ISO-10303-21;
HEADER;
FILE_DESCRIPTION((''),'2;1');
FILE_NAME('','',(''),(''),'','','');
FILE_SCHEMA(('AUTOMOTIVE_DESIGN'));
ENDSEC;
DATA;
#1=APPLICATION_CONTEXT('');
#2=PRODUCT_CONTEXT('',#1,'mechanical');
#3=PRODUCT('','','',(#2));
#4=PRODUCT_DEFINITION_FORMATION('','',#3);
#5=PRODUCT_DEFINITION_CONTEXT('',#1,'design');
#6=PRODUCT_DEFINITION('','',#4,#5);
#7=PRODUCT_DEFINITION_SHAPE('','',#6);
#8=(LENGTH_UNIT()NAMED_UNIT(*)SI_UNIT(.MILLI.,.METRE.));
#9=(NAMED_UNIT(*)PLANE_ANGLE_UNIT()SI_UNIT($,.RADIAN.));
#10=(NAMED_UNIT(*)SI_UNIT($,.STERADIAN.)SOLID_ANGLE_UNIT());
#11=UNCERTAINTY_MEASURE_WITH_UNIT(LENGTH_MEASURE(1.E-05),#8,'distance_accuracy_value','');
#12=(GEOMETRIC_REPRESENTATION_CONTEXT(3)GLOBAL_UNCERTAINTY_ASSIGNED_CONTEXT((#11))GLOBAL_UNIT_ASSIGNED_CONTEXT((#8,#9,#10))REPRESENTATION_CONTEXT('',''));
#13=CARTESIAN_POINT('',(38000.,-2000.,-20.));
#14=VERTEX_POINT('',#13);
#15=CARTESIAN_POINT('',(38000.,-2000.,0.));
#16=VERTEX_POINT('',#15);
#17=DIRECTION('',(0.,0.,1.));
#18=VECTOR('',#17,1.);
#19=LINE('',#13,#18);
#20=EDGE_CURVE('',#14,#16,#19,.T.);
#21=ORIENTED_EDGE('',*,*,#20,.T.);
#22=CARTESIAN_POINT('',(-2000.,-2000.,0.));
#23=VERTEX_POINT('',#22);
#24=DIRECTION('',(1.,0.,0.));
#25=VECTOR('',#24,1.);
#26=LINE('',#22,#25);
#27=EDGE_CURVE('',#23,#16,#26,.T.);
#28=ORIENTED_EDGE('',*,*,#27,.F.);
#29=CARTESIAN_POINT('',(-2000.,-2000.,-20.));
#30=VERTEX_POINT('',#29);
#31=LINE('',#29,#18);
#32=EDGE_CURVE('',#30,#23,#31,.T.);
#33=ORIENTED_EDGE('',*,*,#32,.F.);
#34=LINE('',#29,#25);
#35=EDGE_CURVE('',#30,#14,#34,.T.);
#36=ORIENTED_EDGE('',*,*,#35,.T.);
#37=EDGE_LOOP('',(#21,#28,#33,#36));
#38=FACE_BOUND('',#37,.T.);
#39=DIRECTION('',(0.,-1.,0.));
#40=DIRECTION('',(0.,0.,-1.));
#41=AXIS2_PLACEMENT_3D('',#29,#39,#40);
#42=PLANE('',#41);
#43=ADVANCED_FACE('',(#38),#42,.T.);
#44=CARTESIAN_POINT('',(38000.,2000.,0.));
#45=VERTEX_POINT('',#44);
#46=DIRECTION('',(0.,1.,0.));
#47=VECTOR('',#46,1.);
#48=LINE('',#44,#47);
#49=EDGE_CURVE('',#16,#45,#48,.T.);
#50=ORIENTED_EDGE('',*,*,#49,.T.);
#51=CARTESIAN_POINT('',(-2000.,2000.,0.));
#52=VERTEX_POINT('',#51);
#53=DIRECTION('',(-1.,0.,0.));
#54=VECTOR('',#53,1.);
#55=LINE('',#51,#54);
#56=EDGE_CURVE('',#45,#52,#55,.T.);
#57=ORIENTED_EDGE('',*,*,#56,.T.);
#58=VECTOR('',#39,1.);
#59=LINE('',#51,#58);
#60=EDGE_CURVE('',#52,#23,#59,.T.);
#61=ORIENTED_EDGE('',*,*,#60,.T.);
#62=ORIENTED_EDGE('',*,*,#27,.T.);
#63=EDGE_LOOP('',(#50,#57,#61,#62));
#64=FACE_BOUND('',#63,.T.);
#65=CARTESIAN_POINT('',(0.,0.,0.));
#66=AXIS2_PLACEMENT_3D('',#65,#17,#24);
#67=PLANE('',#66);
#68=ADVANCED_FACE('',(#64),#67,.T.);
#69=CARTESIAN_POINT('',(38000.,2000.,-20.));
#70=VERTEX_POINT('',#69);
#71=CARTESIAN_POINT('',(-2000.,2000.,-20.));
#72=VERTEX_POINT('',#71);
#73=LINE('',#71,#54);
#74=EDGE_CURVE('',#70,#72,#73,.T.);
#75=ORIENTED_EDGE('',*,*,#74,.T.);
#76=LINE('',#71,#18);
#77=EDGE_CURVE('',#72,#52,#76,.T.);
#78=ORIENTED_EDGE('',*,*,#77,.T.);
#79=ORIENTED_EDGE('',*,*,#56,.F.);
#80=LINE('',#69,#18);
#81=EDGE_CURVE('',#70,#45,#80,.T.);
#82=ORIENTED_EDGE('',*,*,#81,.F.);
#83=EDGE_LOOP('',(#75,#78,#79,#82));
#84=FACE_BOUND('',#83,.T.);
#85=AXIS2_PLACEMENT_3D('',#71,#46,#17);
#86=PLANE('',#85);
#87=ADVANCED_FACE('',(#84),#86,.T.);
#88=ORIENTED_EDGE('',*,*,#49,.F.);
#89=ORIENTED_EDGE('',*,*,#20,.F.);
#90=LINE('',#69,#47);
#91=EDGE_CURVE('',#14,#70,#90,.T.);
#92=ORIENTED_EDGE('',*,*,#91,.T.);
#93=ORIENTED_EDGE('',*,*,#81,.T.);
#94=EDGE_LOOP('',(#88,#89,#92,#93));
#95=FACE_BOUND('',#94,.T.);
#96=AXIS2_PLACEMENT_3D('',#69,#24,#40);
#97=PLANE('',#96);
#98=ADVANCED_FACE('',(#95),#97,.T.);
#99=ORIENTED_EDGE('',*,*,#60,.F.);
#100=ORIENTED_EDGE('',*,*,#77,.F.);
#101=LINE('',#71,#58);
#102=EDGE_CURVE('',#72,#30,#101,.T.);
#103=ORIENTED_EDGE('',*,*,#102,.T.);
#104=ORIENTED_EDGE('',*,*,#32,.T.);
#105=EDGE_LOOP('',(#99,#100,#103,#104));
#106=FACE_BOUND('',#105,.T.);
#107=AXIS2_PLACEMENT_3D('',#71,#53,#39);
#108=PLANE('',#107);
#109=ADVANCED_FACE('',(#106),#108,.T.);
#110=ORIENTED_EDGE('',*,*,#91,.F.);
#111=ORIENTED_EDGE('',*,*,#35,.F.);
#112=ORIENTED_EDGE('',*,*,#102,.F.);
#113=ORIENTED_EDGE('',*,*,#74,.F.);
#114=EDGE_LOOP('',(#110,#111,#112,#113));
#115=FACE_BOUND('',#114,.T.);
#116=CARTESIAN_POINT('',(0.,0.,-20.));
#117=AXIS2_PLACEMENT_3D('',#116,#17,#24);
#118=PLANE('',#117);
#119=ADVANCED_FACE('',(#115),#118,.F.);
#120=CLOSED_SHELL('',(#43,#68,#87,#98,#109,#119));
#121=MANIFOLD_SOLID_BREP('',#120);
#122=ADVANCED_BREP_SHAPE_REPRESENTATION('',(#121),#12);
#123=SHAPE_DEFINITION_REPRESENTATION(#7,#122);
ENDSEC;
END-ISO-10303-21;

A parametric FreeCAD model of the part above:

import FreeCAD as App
import Part
import Sketcher


def add_polygon(sketch, points):
    """Adds a closed chain of lines whose ends are joined by coincident constraints."""
    first, n = sketch.GeometryCount, len(points)
    for a, b in zip(points, points[1:] + points[:1]):
        sketch.addGeometry(Part.LineSegment(App.Vector(*a, 0), App.Vector(*b, 0)), False)
    for i in range(n):
        sketch.addConstraint(Sketcher.Constraint("Coincident", first + i, 2, first + (i + 1) % n, 1))

doc = App.newDocument("Part")
body = doc.addObject("PartDesign::Body", "Body")

# Sketch on XY plane
sketch1 = body.newObject("Sketcher::SketchObject", "Sketch")
sketch1.AttachmentSupport = (doc.getObject("XY_Plane"), [""])
sketch1.MapMode = "FlatFace"
add_polygon(sketch1, [(-2000, 2000), (-2000, -2000), (38000, -2000), (38000, 2000)])  # lines 0-3
sketch1.addConstraint([
    Sketcher.Constraint("Vertical", 0),
    Sketcher.Constraint("Horizontal", 1),
    Sketcher.Constraint("Vertical", 2),
    Sketcher.Constraint("Horizontal", 3),
    Sketcher.Constraint("DistanceX", 1, 1, 1, 2, 40000.0),
    Sketcher.Constraint("DistanceY", 0, 2, 0, 1, 4000.0),
    Sketcher.Constraint("DistanceX", 0, 2, -1, 1, 2000.0),
    Sketcher.Constraint("DistanceY", 0, 2, -1, 1, 2000.0),
])
pad1 = body.newObject("PartDesign::Pad", "Pad")
pad1.Profile = sketch1
pad1.Length = 20
pad1.Reversed = True

doc.recompute()
